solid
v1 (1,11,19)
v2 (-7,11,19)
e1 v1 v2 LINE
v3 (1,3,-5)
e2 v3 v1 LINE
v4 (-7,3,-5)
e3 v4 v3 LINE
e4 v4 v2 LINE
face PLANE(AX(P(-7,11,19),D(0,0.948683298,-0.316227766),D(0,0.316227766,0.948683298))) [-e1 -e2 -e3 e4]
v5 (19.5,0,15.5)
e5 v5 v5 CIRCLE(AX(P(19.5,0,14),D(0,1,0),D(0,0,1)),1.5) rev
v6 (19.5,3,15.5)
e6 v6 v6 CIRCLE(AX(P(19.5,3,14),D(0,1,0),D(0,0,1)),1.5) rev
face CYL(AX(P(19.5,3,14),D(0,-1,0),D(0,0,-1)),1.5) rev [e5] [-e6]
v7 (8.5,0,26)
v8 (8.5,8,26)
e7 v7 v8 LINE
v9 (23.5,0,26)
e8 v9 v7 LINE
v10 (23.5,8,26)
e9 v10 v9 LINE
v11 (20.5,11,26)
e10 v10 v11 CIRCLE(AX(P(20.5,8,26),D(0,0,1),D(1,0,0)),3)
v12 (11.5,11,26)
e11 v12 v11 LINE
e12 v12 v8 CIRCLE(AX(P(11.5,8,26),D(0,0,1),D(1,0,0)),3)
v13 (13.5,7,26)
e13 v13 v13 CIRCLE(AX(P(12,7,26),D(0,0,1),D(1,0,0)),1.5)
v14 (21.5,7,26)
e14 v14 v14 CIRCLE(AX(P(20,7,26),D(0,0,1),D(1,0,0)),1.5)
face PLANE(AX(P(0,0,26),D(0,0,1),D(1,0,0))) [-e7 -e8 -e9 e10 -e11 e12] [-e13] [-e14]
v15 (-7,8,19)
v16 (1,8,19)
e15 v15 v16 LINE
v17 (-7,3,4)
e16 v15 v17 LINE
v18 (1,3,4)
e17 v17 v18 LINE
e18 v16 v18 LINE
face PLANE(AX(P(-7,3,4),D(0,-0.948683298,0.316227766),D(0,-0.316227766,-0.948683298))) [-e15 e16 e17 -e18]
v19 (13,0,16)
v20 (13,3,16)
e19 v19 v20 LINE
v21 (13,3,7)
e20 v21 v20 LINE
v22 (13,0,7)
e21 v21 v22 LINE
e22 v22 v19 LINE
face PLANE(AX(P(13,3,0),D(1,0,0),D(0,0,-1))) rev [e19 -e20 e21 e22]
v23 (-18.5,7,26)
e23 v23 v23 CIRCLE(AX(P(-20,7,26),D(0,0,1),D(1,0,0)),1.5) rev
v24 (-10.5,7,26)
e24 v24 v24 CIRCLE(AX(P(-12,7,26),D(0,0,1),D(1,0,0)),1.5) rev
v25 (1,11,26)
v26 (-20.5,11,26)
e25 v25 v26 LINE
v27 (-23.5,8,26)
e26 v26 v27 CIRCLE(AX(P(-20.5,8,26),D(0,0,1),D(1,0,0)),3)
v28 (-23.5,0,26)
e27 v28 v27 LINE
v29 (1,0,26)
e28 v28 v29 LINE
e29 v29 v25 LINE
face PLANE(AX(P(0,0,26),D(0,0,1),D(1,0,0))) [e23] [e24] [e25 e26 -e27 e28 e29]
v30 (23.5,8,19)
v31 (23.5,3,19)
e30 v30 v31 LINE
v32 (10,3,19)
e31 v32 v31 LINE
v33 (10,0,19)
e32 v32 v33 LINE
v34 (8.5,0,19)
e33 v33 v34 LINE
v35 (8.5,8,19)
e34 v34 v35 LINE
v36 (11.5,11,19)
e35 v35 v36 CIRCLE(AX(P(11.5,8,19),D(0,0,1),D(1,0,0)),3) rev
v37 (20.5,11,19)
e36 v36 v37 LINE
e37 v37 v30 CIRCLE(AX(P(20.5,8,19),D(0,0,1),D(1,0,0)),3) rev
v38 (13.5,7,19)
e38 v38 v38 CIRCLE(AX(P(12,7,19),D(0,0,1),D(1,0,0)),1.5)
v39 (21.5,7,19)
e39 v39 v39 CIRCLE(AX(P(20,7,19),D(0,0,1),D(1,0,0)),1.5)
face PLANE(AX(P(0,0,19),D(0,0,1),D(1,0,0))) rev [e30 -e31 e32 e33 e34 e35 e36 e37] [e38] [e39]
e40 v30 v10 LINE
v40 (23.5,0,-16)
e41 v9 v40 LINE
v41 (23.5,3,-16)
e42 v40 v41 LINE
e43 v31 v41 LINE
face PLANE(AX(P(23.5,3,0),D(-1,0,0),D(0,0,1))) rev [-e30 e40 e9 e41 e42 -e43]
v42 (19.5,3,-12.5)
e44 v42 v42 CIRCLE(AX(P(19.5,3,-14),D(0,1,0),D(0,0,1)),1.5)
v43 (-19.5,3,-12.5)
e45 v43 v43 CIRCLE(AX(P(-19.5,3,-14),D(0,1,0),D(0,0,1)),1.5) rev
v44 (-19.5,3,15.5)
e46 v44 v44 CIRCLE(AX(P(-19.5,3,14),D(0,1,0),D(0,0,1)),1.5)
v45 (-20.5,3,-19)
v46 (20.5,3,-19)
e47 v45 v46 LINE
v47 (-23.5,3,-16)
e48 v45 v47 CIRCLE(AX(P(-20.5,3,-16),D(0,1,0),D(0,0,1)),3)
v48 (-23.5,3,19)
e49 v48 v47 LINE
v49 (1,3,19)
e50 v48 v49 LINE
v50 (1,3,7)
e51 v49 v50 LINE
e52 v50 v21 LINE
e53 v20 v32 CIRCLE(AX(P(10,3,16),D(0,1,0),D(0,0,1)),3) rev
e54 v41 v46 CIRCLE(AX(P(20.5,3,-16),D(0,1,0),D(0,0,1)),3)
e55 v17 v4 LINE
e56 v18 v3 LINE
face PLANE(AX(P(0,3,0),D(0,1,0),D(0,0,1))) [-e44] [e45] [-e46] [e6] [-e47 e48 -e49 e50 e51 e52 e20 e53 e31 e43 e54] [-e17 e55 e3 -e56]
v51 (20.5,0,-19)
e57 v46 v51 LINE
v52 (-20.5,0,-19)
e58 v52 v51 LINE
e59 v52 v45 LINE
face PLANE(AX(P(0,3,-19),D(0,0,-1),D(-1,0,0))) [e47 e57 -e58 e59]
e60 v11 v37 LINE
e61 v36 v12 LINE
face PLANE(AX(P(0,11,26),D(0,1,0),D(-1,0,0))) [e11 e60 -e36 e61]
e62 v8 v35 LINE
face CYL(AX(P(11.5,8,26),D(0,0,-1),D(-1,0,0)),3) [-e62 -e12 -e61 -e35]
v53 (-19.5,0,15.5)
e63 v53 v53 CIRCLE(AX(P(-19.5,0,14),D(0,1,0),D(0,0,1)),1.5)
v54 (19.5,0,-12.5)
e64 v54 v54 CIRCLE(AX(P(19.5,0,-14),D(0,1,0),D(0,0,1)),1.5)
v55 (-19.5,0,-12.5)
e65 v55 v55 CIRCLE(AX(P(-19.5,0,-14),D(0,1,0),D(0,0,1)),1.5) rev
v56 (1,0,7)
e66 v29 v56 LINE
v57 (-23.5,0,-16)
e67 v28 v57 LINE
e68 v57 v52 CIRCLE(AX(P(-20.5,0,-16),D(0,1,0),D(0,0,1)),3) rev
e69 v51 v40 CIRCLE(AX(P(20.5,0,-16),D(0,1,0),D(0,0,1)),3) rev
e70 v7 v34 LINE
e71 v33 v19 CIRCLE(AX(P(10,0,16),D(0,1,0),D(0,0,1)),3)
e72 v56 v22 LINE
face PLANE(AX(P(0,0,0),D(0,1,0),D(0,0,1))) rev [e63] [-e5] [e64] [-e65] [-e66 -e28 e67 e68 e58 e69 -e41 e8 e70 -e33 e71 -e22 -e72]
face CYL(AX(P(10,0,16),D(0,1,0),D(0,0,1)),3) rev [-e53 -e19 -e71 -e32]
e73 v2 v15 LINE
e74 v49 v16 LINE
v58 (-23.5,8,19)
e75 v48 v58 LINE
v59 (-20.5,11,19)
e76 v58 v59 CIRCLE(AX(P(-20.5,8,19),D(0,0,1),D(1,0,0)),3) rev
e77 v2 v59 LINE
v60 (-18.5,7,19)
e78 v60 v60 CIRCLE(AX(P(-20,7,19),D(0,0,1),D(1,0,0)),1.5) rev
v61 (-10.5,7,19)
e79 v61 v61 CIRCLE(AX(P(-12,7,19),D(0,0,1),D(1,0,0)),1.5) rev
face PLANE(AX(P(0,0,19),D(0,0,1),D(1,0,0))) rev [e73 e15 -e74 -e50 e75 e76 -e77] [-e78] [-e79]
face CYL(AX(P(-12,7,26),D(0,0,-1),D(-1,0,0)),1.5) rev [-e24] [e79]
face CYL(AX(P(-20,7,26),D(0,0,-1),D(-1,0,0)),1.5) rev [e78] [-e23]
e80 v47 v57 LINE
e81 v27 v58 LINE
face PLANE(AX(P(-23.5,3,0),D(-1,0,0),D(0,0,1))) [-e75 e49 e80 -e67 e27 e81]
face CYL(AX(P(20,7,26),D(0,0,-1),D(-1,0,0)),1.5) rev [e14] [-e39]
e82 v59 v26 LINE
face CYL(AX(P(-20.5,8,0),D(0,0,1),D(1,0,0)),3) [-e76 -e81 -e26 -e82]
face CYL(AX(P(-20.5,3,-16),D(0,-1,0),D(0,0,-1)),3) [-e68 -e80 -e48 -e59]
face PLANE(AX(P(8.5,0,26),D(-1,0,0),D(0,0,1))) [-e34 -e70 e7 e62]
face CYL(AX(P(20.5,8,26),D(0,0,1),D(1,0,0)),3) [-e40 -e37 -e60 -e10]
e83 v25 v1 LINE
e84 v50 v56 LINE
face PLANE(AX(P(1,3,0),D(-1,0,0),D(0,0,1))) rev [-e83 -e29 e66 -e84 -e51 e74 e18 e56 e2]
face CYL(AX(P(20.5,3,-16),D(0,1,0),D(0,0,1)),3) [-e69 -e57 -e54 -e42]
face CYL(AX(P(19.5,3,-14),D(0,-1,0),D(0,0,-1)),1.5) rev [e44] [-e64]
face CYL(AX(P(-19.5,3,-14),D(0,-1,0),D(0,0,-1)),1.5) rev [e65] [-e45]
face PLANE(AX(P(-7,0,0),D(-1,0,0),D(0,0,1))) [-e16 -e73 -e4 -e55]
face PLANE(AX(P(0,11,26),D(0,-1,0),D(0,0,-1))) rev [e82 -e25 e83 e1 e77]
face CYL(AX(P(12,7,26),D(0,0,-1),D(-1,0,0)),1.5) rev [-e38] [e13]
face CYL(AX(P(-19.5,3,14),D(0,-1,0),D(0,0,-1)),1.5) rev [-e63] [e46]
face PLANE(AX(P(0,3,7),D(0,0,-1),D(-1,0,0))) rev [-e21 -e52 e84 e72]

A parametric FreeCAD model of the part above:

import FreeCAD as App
import Part
import Sketcher

V = App.Vector
Q = App.Units.Quantity


def edges_at(feature, points):
    """Names of the edges that pass closest to the given points."""
    edges = feature.Shape.Edges
    near = lambda p: min(range(len(edges)), key=lambda i: edges[i].distToShape(Part.Vertex(*p))[0])
    return sorted({f"Edge{near(p) + 1}" for p in points})

doc = App.newDocument("Part")
body = doc.addObject("PartDesign::Body", "Body")

# Sketch on XZ plane
sketch1 = body.newObject("Sketcher::SketchObject", "Sketch")
sketch1.AttachmentSupport = (doc.getObject("XZ_Plane"), [""])
sketch1.MapMode = "FlatFace"
sketch1.addGeometry([
    Part.LineSegment(V(-23.5, -19, 0), V(-23.5, 19, 0)),  # 0
    Part.LineSegment(V(-23.5, 19, 0), V(1, 19, 0)),  # 1
    Part.LineSegment(V(1, 19, 0), V(1, 7, 0)),  # 2
    Part.LineSegment(V(1, 7, 0), V(13, 7, 0)),  # 3
    Part.LineSegment(V(13, 7, 0), V(13, 19, 0)),  # 4
    Part.LineSegment(V(13, 19, 0), V(23.5, 19, 0)),  # 5
    Part.LineSegment(V(23.5, 19, 0), V(23.5, -19, 0)),  # 6
    Part.LineSegment(V(23.5, -19, 0), V(-23.5, -19, 0)),  # 7
    Part.Circle(V(-19.5, 14, 0), V(0, 0, 1), 1.5),  # 8
    Part.Circle(V(19.5, 14, 0), V(0, 0, 1), 1.5),  # 9
    Part.Circle(V(-19.5, -14, 0), V(0, 0, 1), 1.5),  # 10
    Part.Circle(V(19.5, -14, 0), V(0, 0, 1), 1.5),  # 11
], False)
sketch1.addConstraint([
    Sketcher.Constraint("Coincident", 0, 2, 1, 1),
    Sketcher.Constraint("Coincident", 1, 2, 2, 1),
    Sketcher.Constraint("Coincident", 2, 2, 3, 1),
    Sketcher.Constraint("Coincident", 3, 2, 4, 1),
    Sketcher.Constraint("Coincident", 4, 2, 5, 1),
    Sketcher.Constraint("Coincident", 5, 2, 6, 1),
    Sketcher.Constraint("Coincident", 6, 2, 7, 1),
    Sketcher.Constraint("Coincident", 7, 2, 0, 1),
    Sketcher.Constraint("Vertical", 0),
    Sketcher.Constraint("Horizontal", 1),
    Sketcher.Constraint("Vertical", 2),
    Sketcher.Constraint("Horizontal", 3),
    Sketcher.Constraint("Vertical", 4),
    Sketcher.Constraint("Horizontal", 5),
    Sketcher.Constraint("Vertical", 6),
    Sketcher.Constraint("Horizontal", 7),
    Sketcher.Constraint("Equal", 8, 9),
    Sketcher.Constraint("Equal", 9, 10),
    Sketcher.Constraint("Equal", 10, 11),
    Sketcher.Constraint("Symmetric", 9, 3, 10, 3, -1, 1),
    Sketcher.Constraint("Symmetric", 8, 3, 11, 3, -1, 1),
    Sketcher.Constraint("Symmetric", 0, 2, 6, 2, -1, 1),
    Sketcher.Constraint("Symmetric", 8, 3, 9, 3, -2),
    Sketcher.Constraint("Horizontal", 1, 2, 4, 2),
    Sketcher.Constraint("Equal", 3, 2),
    Sketcher.Constraint("Diameter", 8, Q("3 mm")),
    Sketcher.Constraint("DistanceX", 3, 1, 3, 2, Q("12 mm")),
    Sketcher.Constraint("DistanceX", 7, 2, 7, 1, Q("47 mm")),
    Sketcher.Constraint("DistanceY", 0, 1, 0, 2, Q("38 mm")),
    Sketcher.Constraint("DistanceX", 1, 1, 1, 2, Q("24.5 mm")),
    Sketcher.Constraint("DistanceY", -1, 1, 8, 3, Q("14 mm")),
    Sketcher.Constraint("DistanceX", 8, 3, 9, 3, Q("39 mm")),
])
pad1 = body.newObject("PartDesign::Pad", "Pad")
pad1.Profile = sketch1
pad1.Length = 3
pad1.Reversed = True

# Sketch on XY plane
sketch2 = body.newObject("Sketcher::SketchObject", "Sketch001")
sketch2.AttachmentSupport = (doc.getObject("XY_Plane"), [""])
sketch2.MapMode = "FlatFace"
sketch2.AttachmentOffset = App.Placement(V(0, 0, 19), App.Rotation())
sketch2.addGeometry([
    Part.LineSegment(V(-23.5, 11, 0), V(-23.5, 0, 0)),  # 0
    Part.LineSegment(V(-23.5, 0, 0), V(1, 0, 0)),  # 1
    Part.LineSegment(V(1, 0, 0), V(1, 11, 0)),  # 2
    Part.LineSegment(V(1, 11, 0), V(-23.5, 11, 0)),  # 3
    Part.Circle(V(-20, 7, 0), V(0, 0, 1), 1.5),  # 4
    Part.Circle(V(-12, 7, 0), V(0, 0, 1), 1.5),  # 5
    Part.LineSegment(V(8.5, 11, 0), V(8.5, 0, 0)),  # 6
    Part.LineSegment(V(8.5, 0, 0), V(23.5, 0, 0)),  # 7
    Part.LineSegment(V(23.5, 0, 0), V(23.5, 11, 0)),  # 8
    Part.LineSegment(V(23.5, 11, 0), V(8.5, 11, 0)),  # 9
    Part.Circle(V(12, 7, 0), V(0, 0, 1), 1.5),  # 10
    Part.Circle(V(20, 7, 0), V(0, 0, 1), 1.5),  # 11
], False)
sketch2.addConstraint([
    Sketcher.Constraint("Coincident", 0, 2, 1, 1),
    Sketcher.Constraint("Coincident", 1, 2, 2, 1),
    Sketcher.Constraint("Coincident", 2, 2, 3, 1),
    Sketcher.Constraint("Coincident", 3, 2, 0, 1),
    Sketcher.Constraint("Coincident", 6, 2, 7, 1),
    Sketcher.Constraint("Coincident", 7, 2, 8, 1),
    Sketcher.Constraint("Coincident", 8, 2, 9, 1),
    Sketcher.Constraint("Coincident", 9, 2, 6, 1),
    Sketcher.Constraint("Vertical", 0),
    Sketcher.Constraint("Horizontal", 1),
    Sketcher.Constraint("Vertical", 2),
    Sketcher.Constraint("Horizontal", 3),
    Sketcher.Constraint("Vertical", 6),
    Sketcher.Constraint("Horizontal", 7),
    Sketcher.Constraint("Vertical", 8),
    Sketcher.Constraint("Horizontal", 9),
    Sketcher.Constraint("Equal", 4, 5),
    Sketcher.Constraint("Equal", 5, 10),
    Sketcher.Constraint("Equal", 10, 11),
    Sketcher.Constraint("Symmetric", 0, 2, 7, 2, -1, 1),
    Sketcher.Constraint("Symmetric", 5, 3, 10, 3, -2),
    Sketcher.Constraint("Symmetric", 4, 3, 11, 3, -2),
    Sketcher.Constraint("PointOnObject", 0, 2, -1),
    Sketcher.Constraint("Horizontal", 4, 3, 5, 3),
    Sketcher.Constraint("Horizontal", 3, 2, 8, 2),
    Sketcher.Constraint("Diameter", 4, Q("3 mm")),
    Sketcher.Constraint("DistanceX", 7, 1, 7, 2, Q("15 mm")),
    Sketcher.Constraint("DistanceY", 0, 2, 0, 1, Q("11 mm")),
    Sketcher.Constraint("DistanceX", 1, 1, 1, 2, Q("24.5 mm")),
    Sketcher.Constraint("DistanceX", 4, 3, -1, 1, Q("20 mm")),
    Sketcher.Constraint("DistanceY", -1, 1, 4, 3, Q("7 mm")),
    Sketcher.Constraint("DistanceX", 5, 3, -1, 1, Q("12 mm")),
    Sketcher.Constraint("DistanceX", -1, 1, 1, 2, Q("1 mm")),
])
pad2 = body.newObject("PartDesign::Pad", "Pad001")
pad2.Profile = sketch2
pad2.Length = 7
doc.recompute()

fillet = body.newObject("PartDesign::Fillet", "Fillet")
fillet.Base = (pad2, edges_at(pad2, [(-23.5, 1.5, -19), (23.5, 1.5, -19)]))
fillet.Radius = 3

# Sketch on YZ plane
sketch3 = body.newObject("Sketcher::SketchObject", "Sketch002")
sketch3.AttachmentSupport = (doc.getObject("YZ_Plane"), [""])
sketch3.MapMode = "FlatFace"
sketch3.AttachmentOffset = App.Placement(V(0, 0, 1), App.Rotation())
sketch3.addGeometry([
    Part.LineSegment(V(11, 19, 0), V(8, 19, 0)),
    Part.LineSegment(V(8, 19, 0), V(3, 4, 0)),
    Part.LineSegment(V(3, 4, 0), V(3, -5, 0)),
    Part.LineSegment(V(3, -5, 0), V(11, 19, 0)),
], False)
sketch3.addConstraint([
    Sketcher.Constraint("Coincident", 0, 2, 1, 1),
    Sketcher.Constraint("Coincident", 1, 2, 2, 1),
    Sketcher.Constraint("Coincident", 2, 2, 3, 1),
    Sketcher.Constraint("Coincident", 3, 2, 0, 1),
    Sketcher.Constraint("Horizontal", 0),
    Sketcher.Constraint("Vertical", 2),
    Sketcher.Constraint("Parallel", 1, 3),
    Sketcher.Constraint("DistanceX", 0, 2, 0, 1, Q("3 mm")),
    Sketcher.Constraint("DistanceY", 2, 2, 2, 1, Q("9 mm")),
    Sketcher.Constraint("DistanceX", -1, 1, 0, 2, Q("8 mm")),
    Sketcher.Constraint("DistanceY", -1, 1, 0, 2, Q("19 mm")),
    Sketcher.Constraint("DistanceX", -1, 1, 1, 2, Q("3 mm")),
])
pad3 = body.newObject("PartDesign::Pad", "Pad002")
pad3.Profile = sketch3
pad3.Length = 8
pad3.Reversed = True
doc.recompute()

fillet2 = body.newObject("PartDesign::Fillet", "Fillet001")
fillet2.Base = (pad3, edges_at(pad3, [(13, 1.5, 19)]))
fillet2.Radius = 3
doc.recompute()

fillet3 = body.newObject("PartDesign::Fillet", "Fillet002")
fillet3.Base = (fillet2, edges_at(fillet2, [(-23.5, 11, 22.5), (23.5, 11, 22.5), (8.5, 11, 22.5)]))
fillet3.Radius = 3

doc.recompute()
